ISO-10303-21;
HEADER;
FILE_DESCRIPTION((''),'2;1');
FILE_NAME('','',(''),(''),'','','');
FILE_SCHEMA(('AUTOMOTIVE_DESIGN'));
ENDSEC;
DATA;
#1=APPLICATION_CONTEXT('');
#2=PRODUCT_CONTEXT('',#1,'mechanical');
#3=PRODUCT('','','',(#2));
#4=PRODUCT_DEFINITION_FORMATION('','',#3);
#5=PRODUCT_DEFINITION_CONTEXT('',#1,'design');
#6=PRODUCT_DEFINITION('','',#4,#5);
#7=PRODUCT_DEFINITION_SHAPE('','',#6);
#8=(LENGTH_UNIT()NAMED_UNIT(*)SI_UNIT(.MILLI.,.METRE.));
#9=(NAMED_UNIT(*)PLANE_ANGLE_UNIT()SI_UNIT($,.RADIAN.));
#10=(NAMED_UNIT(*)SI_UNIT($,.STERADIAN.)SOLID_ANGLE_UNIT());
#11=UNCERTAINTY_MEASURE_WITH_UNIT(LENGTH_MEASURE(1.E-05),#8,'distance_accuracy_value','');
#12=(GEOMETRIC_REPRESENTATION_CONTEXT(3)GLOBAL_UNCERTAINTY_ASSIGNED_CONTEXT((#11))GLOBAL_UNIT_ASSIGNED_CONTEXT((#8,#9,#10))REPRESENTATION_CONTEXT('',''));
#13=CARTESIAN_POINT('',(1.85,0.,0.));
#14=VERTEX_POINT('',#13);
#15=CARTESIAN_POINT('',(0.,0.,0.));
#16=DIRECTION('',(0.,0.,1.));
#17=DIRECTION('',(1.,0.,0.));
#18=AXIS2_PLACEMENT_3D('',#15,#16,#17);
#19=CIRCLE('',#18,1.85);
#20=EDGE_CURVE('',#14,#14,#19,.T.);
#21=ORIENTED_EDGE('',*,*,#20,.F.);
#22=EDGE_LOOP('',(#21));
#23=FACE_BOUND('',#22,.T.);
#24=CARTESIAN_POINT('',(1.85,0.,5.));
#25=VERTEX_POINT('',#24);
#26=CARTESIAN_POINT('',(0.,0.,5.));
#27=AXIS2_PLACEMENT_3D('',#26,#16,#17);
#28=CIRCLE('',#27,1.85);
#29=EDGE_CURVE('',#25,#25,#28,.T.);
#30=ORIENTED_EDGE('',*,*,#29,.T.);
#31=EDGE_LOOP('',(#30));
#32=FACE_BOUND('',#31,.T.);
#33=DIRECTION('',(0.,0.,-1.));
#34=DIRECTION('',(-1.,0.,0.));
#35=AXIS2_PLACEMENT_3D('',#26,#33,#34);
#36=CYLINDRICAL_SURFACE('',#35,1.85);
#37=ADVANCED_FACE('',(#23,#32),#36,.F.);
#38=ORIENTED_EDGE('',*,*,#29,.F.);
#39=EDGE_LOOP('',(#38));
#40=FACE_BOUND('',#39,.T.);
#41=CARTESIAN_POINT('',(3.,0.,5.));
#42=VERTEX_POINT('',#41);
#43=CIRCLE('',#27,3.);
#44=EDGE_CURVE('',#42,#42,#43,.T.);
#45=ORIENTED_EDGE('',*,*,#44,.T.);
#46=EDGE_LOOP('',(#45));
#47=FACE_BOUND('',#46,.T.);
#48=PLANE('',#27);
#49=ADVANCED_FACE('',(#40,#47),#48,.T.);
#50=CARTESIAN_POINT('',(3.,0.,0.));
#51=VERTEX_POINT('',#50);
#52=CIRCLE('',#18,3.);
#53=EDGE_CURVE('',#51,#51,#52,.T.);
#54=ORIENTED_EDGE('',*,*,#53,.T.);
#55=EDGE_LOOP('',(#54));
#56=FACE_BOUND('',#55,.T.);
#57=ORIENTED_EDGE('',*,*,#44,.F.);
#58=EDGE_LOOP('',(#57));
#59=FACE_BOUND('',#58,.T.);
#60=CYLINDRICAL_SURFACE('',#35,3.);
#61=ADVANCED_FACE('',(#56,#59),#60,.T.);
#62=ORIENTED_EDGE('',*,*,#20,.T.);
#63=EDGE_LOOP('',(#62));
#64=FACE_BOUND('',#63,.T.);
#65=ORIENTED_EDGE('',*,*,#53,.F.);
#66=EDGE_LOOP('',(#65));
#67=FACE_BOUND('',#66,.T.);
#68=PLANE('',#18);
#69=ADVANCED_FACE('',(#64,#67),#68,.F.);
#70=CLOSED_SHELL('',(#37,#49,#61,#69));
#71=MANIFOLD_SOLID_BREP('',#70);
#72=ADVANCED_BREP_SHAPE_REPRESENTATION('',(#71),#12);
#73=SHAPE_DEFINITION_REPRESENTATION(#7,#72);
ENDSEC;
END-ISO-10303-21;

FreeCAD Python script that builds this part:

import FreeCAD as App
import Part
import Sketcher

V = App.Vector
Q = App.Units.Quantity

doc = App.newDocument("Part")
params = doc.addObject("Spreadsheet::Sheet", "Params")
for row, (alias, value) in enumerate([
    ("sketch1_diameter", "6 mm"),
    ("sketch1_diameter2", "3.7 mm"),
    ("pad1_length", "5 mm"),
], start=1):
    params.set(f"A{row}", alias)
    params.set(f"B{row}", "=" + value)
    params.setAlias(f"B{row}", alias)

body = doc.addObject("PartDesign::Body", "Body")

# Sketch on XY plane
sketch1 = doc.addObject("Sketcher::SketchObject", "Sketch")
body.addObject(sketch1)
sketch1.AttachmentSupport = (doc.XY_Plane, [""])
sketch1.MapMode = "FlatFace"
sketch1.addGeometry([
    Part.Circle(V(0, 0, 0), V(0, 0, 1), 3),
    Part.Circle(V(0, 0, 0), V(0, 0, 1), 1.9),
], False)
sketch1.addConstraint([
    Sketcher.Constraint("Coincident", 0, 3, -1, 1),
    Sketcher.Constraint("Coincident", 1, 3, -1, 1),
    Sketcher.Constraint("Diameter", 0, Q("6 mm")),
    Sketcher.Constraint("Diameter", 1, Q("3.7 mm")),
])
sketch1.setExpression("Constraints[2]", "Params.sketch1_diameter")
sketch1.setExpression("Constraints[3]", "Params.sketch1_diameter2")
pad1 = doc.addObject("PartDesign::Pad", "Pad")
body.addObject(pad1)
pad1.Profile = sketch1
pad1.setExpression("Length", "Params.pad1_length")

doc.recompute()
